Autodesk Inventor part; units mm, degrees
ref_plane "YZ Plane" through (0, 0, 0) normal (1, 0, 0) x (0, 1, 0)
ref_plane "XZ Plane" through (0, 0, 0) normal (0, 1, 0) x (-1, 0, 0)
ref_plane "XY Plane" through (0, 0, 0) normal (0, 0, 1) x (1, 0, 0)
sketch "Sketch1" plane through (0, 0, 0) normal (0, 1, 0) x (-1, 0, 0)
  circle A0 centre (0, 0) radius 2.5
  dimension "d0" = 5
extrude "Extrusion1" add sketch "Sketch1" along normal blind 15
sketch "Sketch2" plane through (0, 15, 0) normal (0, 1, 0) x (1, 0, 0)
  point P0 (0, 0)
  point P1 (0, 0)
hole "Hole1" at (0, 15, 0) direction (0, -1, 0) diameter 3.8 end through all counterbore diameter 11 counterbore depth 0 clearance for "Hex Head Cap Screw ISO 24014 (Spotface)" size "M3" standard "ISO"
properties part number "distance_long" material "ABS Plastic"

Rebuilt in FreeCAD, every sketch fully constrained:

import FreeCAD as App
import Part
import Sketcher

V = App.Vector

doc = App.newDocument("Part")
body = doc.addObject("PartDesign::Body", "Body")

# Sketch on XZ plane
sketch1 = doc.addObject("Sketcher::SketchObject", "Sketch")
body.addObject(sketch1)
sketch1.AttachmentSupport = (doc.XZ_Plane, [""])
sketch1.MapMode = "FlatFace"
sketch1.addGeometry(Part.Circle(V(0, 0, 0), V(0, 0, 1), 2.5), False)
sketch1.addConstraint(Sketcher.Constraint("Coincident", 0, 3, -1, 1))
sketch1.addConstraint(Sketcher.Constraint("Diameter", 0, 5.0))
pad1 = doc.addObject("PartDesign::Pad", "Pad")
body.addObject(pad1)
pad1.Profile = sketch1
pad1.Length = 15
pad1.Reversed = True

# Sketch on XZ plane
sketch2 = doc.addObject("Sketcher::SketchObject", "Sketch001")
body.addObject(sketch2)
sketch2.AttachmentSupport = (doc.XZ_Plane, [""])
sketch2.MapMode = "FlatFace"
sketch2.AttachmentOffset = App.Placement(V(0, 0, -15), App.Rotation())
sketch2.addGeometry(Part.Circle(V(0, 0, 0), V(0, 0, 1), 1.9), False)
sketch2.addConstraint(Sketcher.Constraint("Coincident", 0, 3, -1, 1))
sketch2.addConstraint(Sketcher.Constraint("Diameter", 0, 3.8))
doc.recompute()
hole = doc.addObject("PartDesign::Hole", "Hole")
body.addObject(hole)
hole.Profile = sketch2
hole.ThreadType = "None"
hole.Diameter = 3.8
hole.DepthType = "ThroughAll"
hole.HoleCutType = "Counterbore"
hole.HoleCutDiameter = 11
hole.HoleCutDepth = 0
hole.Reversed = True

doc.recompute()
